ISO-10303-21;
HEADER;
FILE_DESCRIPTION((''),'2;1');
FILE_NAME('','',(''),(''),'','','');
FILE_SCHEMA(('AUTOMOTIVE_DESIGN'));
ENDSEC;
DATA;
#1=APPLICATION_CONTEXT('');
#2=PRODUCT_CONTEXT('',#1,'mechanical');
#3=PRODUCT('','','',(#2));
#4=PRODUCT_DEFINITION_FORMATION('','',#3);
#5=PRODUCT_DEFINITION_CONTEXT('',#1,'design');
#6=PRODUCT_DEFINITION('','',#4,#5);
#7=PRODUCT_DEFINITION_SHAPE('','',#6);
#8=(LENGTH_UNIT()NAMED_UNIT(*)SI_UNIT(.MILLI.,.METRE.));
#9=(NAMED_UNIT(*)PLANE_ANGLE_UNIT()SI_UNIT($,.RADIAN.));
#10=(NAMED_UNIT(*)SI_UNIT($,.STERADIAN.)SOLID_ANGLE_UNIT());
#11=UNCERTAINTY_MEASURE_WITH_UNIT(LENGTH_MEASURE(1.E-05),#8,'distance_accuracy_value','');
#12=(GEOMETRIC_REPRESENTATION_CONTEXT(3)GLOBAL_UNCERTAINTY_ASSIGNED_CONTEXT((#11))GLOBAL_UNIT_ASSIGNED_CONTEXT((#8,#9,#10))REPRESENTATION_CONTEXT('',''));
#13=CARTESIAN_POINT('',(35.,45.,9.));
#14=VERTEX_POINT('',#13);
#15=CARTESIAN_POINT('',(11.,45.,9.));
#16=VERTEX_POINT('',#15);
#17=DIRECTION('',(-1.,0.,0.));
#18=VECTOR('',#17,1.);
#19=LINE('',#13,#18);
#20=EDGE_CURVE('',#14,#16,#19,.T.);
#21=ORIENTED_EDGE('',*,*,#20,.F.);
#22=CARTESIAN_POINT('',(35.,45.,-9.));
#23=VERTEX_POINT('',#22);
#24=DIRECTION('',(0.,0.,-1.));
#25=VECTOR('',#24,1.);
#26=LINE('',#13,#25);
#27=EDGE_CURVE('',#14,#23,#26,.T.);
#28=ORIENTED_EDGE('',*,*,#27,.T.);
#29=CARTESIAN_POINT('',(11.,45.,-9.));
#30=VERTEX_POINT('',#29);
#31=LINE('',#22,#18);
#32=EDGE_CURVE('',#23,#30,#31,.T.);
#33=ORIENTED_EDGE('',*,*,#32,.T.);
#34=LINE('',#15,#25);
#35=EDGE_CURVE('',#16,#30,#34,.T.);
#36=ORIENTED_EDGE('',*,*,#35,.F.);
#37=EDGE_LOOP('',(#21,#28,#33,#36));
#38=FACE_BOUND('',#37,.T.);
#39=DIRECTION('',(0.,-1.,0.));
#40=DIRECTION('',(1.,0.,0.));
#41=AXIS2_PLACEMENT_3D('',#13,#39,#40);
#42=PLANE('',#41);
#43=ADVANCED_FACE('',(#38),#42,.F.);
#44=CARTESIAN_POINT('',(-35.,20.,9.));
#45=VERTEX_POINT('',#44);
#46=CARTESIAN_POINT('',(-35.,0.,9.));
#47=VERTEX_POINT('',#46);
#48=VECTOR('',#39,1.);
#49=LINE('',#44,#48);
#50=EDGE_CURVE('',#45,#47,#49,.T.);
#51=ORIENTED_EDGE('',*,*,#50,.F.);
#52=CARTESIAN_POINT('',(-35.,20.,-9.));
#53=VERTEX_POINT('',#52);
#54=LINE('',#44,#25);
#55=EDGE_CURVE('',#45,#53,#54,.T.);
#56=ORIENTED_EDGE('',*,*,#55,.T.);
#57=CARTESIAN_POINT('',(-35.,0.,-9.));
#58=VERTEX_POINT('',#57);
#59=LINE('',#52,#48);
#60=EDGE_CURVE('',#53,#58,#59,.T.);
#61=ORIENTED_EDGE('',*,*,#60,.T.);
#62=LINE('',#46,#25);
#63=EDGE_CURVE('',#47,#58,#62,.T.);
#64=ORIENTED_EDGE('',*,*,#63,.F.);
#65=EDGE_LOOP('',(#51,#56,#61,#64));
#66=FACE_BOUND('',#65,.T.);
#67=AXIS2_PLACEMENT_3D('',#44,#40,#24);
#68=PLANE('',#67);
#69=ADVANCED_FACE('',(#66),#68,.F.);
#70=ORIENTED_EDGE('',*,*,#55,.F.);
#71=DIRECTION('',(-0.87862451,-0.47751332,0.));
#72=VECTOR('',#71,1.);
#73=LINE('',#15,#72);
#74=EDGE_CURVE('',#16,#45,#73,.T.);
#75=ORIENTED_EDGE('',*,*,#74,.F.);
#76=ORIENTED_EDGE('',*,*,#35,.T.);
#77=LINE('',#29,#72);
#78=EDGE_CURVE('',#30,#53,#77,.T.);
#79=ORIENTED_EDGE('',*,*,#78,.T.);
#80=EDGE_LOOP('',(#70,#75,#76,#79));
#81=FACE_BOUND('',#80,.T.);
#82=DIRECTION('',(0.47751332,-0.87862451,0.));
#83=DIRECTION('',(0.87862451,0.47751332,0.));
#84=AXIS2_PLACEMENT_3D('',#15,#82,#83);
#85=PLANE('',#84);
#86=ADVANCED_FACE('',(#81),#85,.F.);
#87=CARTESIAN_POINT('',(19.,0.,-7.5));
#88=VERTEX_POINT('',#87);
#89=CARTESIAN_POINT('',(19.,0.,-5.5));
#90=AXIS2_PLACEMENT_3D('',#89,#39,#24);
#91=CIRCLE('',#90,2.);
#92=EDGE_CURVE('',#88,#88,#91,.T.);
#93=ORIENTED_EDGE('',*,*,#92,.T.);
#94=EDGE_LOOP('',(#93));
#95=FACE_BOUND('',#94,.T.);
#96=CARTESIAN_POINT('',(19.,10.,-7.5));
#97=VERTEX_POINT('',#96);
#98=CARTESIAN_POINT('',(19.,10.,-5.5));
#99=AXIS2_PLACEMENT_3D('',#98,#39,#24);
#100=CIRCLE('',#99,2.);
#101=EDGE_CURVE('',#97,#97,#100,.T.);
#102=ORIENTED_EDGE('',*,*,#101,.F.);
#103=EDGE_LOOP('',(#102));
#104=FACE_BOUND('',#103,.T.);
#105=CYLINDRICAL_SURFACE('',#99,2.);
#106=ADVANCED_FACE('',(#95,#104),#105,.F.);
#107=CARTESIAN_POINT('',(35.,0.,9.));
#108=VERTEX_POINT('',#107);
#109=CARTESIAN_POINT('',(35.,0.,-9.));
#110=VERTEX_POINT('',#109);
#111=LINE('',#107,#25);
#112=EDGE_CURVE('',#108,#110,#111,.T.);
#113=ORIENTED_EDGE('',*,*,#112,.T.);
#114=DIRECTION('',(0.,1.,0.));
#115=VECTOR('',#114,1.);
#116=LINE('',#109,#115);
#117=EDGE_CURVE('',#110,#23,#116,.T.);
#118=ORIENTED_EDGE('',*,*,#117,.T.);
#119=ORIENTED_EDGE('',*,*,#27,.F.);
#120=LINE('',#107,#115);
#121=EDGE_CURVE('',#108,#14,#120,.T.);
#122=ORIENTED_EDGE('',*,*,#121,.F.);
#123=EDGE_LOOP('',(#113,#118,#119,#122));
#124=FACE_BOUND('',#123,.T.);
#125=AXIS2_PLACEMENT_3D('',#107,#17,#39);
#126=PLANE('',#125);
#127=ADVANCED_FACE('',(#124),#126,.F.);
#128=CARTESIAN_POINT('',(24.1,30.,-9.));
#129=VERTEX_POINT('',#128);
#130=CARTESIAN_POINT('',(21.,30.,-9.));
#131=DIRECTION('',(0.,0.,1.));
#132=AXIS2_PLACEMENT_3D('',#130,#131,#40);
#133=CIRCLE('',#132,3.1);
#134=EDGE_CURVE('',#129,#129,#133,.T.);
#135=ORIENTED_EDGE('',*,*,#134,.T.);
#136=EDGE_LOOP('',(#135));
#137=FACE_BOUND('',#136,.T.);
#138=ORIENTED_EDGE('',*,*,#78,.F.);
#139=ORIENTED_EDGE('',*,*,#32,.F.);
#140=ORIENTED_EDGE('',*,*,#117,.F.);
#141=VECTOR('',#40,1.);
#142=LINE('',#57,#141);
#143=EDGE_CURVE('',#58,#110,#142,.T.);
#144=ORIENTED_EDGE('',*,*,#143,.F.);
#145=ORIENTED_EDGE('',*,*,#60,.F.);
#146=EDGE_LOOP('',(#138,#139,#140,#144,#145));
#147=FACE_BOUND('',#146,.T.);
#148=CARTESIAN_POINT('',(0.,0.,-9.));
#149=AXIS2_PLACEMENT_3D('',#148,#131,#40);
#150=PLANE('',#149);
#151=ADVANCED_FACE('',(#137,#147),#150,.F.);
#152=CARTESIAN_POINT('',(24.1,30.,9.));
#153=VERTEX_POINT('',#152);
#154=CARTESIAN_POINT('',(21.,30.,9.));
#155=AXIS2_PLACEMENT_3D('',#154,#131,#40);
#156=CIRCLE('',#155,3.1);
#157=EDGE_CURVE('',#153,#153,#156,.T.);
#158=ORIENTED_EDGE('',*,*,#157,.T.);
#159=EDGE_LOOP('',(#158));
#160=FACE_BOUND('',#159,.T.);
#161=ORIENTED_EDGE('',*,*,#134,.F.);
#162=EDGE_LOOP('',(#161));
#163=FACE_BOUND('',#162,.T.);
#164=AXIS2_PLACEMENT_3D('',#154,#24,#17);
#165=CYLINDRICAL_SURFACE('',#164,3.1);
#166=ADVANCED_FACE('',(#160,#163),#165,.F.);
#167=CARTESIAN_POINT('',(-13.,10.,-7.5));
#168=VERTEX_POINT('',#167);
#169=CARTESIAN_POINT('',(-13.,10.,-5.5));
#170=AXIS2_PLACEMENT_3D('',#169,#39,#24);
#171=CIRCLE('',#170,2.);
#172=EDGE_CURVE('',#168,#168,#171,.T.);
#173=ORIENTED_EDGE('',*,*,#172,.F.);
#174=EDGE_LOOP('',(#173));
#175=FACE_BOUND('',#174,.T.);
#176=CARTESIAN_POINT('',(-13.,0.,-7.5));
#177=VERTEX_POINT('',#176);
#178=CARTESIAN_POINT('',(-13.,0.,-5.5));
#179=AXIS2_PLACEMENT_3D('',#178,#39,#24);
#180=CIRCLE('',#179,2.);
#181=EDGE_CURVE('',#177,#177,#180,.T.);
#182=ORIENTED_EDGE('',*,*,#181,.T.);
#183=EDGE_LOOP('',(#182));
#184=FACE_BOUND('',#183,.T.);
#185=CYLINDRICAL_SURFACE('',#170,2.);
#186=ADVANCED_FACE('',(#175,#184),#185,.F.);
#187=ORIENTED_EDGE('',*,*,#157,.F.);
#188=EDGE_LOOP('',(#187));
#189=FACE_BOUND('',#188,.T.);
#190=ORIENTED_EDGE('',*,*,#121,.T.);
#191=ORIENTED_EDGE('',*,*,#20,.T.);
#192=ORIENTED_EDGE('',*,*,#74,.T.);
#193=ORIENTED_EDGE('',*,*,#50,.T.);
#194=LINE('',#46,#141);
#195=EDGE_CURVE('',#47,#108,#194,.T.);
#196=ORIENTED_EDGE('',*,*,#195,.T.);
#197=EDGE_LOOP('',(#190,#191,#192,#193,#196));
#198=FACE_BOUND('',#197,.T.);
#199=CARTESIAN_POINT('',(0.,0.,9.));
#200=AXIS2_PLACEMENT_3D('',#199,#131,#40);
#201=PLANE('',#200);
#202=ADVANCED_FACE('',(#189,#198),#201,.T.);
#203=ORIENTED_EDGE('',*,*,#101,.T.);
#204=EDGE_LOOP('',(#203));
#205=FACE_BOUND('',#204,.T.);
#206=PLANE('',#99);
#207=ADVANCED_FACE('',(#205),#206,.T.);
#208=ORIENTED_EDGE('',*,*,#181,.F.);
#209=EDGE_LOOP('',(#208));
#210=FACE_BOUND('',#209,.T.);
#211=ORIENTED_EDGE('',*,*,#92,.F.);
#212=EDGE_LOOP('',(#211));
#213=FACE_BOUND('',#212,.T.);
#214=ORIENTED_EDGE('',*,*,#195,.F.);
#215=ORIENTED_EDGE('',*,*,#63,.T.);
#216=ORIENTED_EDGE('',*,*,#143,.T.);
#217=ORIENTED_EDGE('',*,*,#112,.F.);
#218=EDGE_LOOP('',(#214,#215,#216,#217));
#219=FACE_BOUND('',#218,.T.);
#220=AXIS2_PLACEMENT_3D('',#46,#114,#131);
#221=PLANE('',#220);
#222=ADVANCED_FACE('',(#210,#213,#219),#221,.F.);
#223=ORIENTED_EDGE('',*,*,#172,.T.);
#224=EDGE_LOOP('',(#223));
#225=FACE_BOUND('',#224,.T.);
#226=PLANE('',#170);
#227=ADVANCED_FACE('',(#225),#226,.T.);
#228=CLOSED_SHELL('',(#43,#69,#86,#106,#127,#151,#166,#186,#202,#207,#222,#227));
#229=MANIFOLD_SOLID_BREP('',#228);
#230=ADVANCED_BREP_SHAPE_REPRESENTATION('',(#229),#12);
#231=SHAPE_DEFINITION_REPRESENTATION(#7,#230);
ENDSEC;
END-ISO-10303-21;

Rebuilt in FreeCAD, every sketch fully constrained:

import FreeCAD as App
import Part
import Sketcher
from FreeCAD import Vector
Q = App.Units.Quantity


def add_polygon(sketch, points):
    """Adds a closed chain of lines whose ends are joined by coincident constraints."""
    first, n = sketch.GeometryCount, len(points)
    for a, b in zip(points, points[1:] + points[:1]):
        sketch.addGeometry(Part.LineSegment(App.Vector(*a, 0), App.Vector(*b, 0)), False)
    for i in range(n):
        sketch.addConstraint(Sketcher.Constraint("Coincident", first + i, 2, first + (i + 1) % n, 1))

doc = App.newDocument("Part")
body = doc.addObject("PartDesign::Body", "Body")

# Sketch on XY plane
sketch1 = doc.addObject("Sketcher::SketchObject", "Sketch")
body.addObject(sketch1)
sketch1.AttachmentSupport = (doc.XY_Plane, [""])
sketch1.MapMode = "FlatFace"
add_polygon(sketch1, [(-35, 0), (35, 0), (35, 45), (11, 45), (-35, 20)])  # lines 0-4
sketch1.addGeometry(Part.Circle(Vector(21, 30, 0), Vector(0, 0, 1), 3.1), False)  # 5
sketch1.addConstraint([
    Sketcher.Constraint("Horizontal", 0),
    Sketcher.Constraint("Vertical", 1),
    Sketcher.Constraint("Horizontal", 2),
    Sketcher.Constraint("Vertical", 4),
    Sketcher.Constraint("Symmetric", 0, 2, 4, 2, -1, 1),
    Sketcher.Constraint("Diameter", 5, Q("6.2 mm")),
    Sketcher.Constraint("DistanceX", 0, 1, 0, 2, Q("70 mm")),
    Sketcher.Constraint("DistanceX", 2, 2, 2, 1, Q("24 mm")),
    Sketcher.Constraint("DistanceY", 1, 1, 1, 2, Q("45 mm")),
    Sketcher.Constraint("DistanceY", 4, 2, 4, 1, Q("20 mm")),
    Sketcher.Constraint("DistanceX", -1, 1, 5, 3, Q("21 mm")),
    Sketcher.Constraint("DistanceY", -1, 1, 5, 3, Q("30 mm")),
])
pad1 = doc.addObject("PartDesign::Pad", "Pad")
body.addObject(pad1)
pad1.Profile = sketch1
pad1.Length = 18
pad1.Midplane = True

# Sketch on XZ plane
sketch2 = doc.addObject("Sketcher::SketchObject", "Sketch001")
body.addObject(sketch2)
sketch2.AttachmentSupport = (doc.XZ_Plane, [""])
sketch2.MapMode = "FlatFace"
sketch2.addGeometry([
    Part.Circle(Vector(19, -5.5, 0), Vector(0, 0, 1), 2),
    Part.Circle(Vector(-13, -5.5, 0), Vector(0, 0, 1), 2),
], False)
sketch2.addConstraint([
    Sketcher.Constraint("Equal", 0, 1),
    Sketcher.Constraint("Horizontal", 0, 3, 1, 3),
    Sketcher.Constraint("Diameter", 0, Q("4 mm")),
    Sketcher.Constraint("DistanceX", -1, 1, 0, 3, Q("19 mm")),
    Sketcher.Constraint("DistanceX", 1, 3, -1, 1, Q("13 mm")),
    Sketcher.Constraint("DistanceY", 0, 3, -1, 1, Q("5.5 mm")),
])
pocket1 = doc.addObject("PartDesign::Pocket", "Pocket")
body.addObject(pocket1)
pocket1.Profile = sketch2
pocket1.Length = 10

doc.recompute()
